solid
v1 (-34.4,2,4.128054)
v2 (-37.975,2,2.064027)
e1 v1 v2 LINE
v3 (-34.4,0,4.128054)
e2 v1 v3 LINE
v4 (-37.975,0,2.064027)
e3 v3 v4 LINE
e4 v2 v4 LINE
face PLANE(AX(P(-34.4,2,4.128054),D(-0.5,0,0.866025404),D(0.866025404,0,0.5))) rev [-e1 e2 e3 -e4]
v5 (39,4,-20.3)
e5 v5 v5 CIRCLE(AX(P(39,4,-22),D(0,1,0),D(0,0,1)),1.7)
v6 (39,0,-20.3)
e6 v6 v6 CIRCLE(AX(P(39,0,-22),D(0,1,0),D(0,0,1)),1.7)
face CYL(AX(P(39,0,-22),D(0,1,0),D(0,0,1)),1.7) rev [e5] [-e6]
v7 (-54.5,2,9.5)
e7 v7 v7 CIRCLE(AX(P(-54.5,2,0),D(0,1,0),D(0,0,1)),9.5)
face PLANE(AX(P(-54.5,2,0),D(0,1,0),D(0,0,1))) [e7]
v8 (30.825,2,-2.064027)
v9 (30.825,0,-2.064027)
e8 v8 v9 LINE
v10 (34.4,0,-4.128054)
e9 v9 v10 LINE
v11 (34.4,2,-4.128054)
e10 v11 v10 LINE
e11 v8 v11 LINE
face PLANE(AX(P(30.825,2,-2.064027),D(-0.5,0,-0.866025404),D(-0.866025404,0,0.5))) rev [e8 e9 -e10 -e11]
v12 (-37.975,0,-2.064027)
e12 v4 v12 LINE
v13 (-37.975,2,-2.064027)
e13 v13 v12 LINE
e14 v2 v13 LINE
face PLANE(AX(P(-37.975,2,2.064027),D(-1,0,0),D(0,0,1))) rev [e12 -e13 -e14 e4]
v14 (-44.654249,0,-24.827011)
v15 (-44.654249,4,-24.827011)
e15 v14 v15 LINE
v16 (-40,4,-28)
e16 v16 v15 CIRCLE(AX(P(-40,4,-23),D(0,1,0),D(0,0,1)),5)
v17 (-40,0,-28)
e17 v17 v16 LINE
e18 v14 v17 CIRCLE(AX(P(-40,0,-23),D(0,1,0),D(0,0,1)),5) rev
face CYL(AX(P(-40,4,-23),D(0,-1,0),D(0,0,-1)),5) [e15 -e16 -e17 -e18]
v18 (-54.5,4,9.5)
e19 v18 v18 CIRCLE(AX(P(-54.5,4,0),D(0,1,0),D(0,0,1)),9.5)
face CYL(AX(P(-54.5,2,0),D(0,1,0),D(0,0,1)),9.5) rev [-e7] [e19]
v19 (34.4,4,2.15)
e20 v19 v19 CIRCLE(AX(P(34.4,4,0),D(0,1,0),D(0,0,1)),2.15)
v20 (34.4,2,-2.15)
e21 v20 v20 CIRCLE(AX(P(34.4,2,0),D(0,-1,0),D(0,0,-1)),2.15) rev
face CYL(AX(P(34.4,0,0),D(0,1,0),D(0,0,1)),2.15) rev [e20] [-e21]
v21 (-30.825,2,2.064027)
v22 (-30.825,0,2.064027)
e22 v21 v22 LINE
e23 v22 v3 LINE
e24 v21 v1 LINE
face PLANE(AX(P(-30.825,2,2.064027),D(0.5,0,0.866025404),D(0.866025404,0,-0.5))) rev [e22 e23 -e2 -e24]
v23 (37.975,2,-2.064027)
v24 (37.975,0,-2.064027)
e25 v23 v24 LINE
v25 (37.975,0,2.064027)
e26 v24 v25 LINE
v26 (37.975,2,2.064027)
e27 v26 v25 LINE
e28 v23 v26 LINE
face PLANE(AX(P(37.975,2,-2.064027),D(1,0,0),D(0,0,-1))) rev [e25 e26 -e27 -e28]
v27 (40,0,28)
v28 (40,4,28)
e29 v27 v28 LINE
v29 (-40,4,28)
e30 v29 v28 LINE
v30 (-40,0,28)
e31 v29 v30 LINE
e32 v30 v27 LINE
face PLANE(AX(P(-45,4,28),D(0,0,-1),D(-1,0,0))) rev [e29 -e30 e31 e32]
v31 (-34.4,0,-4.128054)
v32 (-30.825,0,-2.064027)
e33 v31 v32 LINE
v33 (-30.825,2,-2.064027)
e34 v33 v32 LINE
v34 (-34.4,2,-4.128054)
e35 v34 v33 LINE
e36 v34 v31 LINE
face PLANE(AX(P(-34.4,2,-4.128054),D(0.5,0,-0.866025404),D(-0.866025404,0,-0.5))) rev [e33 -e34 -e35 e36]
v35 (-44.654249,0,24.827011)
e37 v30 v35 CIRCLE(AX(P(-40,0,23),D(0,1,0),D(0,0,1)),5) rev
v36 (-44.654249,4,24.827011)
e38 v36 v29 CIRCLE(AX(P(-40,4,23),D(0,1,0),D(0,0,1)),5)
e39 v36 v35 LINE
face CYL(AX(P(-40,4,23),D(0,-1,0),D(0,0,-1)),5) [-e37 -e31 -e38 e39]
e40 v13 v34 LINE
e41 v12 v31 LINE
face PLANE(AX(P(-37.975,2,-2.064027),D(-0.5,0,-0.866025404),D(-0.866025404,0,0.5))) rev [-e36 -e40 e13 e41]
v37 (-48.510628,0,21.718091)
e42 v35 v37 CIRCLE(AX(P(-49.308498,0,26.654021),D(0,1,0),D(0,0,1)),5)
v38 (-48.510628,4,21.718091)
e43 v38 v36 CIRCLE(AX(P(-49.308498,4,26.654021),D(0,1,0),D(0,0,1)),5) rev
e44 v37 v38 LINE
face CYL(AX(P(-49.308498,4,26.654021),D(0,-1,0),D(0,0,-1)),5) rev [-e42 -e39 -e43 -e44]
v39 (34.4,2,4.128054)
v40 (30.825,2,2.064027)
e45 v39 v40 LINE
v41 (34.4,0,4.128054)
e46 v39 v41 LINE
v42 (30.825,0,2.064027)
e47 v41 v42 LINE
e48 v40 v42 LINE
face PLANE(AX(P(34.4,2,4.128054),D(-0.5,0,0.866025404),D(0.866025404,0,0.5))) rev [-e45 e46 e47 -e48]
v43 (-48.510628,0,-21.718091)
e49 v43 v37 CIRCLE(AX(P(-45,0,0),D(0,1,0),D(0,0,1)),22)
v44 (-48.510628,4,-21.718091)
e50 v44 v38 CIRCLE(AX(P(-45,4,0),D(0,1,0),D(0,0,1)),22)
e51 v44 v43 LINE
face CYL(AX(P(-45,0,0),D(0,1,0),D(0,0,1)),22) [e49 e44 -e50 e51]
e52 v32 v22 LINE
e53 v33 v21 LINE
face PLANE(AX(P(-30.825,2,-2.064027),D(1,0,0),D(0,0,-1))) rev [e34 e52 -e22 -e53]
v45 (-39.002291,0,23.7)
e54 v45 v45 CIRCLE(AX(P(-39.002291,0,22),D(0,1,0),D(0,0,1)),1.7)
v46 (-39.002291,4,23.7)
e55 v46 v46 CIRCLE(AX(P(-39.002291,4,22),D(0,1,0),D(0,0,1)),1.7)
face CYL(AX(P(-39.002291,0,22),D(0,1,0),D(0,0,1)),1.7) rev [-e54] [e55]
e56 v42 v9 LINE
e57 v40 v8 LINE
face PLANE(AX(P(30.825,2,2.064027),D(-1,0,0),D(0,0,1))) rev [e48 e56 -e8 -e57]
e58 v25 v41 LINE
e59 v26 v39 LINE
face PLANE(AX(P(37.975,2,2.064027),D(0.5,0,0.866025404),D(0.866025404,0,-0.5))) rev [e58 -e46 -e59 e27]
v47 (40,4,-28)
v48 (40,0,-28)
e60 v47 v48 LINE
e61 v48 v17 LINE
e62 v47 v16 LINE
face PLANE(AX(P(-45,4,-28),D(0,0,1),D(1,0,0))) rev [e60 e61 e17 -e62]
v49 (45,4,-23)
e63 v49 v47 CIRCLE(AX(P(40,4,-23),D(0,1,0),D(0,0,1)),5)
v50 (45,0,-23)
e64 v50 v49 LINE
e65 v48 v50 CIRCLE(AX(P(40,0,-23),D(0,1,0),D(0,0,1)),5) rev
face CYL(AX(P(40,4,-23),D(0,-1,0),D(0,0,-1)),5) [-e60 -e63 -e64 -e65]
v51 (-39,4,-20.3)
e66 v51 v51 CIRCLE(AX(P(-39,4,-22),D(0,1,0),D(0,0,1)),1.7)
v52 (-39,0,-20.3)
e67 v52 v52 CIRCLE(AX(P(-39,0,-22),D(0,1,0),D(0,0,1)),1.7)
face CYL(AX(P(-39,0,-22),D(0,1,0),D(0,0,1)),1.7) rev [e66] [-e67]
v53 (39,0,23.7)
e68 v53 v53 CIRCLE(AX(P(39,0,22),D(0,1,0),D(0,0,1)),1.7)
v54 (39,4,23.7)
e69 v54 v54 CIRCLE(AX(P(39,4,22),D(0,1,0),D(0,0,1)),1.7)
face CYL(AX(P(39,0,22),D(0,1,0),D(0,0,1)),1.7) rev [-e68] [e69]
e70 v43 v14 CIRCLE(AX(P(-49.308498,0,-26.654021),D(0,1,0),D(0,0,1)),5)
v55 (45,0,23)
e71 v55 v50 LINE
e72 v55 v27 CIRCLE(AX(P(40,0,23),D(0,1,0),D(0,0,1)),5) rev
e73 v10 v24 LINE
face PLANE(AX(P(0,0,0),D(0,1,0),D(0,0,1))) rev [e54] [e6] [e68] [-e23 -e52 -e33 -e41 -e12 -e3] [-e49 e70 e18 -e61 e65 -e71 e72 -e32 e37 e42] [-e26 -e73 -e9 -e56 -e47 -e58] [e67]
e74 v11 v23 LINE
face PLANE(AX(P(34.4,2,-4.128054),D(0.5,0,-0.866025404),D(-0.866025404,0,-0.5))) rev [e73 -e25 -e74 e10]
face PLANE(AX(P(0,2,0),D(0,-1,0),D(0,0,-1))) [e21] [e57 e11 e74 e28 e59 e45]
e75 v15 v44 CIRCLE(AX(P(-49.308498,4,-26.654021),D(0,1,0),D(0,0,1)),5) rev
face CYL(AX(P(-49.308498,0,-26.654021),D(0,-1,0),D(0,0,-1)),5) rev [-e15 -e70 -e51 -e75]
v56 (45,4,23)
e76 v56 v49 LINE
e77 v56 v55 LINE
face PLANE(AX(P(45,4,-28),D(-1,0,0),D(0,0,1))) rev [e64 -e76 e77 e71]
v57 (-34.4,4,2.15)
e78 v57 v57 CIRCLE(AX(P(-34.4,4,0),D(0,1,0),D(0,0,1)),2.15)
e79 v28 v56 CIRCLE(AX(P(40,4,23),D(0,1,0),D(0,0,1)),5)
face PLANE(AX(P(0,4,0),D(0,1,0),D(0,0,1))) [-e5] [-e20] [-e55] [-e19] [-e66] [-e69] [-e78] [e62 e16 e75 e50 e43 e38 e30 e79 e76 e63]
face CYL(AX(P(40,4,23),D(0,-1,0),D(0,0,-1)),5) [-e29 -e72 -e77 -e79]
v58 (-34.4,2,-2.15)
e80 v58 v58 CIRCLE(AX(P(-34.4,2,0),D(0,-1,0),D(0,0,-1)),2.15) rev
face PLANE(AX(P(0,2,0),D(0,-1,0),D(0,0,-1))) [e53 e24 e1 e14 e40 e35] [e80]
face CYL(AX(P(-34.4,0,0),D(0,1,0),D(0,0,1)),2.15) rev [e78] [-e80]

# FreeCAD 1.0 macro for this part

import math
import FreeCAD as App
import Part
import Sketcher

V = App.Vector
Q = App.Units.Quantity


def edges_at(feature, points):
    """Names of the edges that pass closest to the given points."""
    edges = feature.Shape.Edges
    near = lambda p: min(range(len(edges)), key=lambda i: edges[i].distToShape(Part.Vertex(*p))[0])
    return sorted({f"Edge{near(p) + 1}" for p in points})

doc = App.newDocument("Part")
params = doc.addObject("Spreadsheet::Sheet", "Params")
for row, (alias, value) in enumerate([
    ("sketch1_width", "90 mm"),
    ("sketch1_height", "56 mm"),
    ("pad1_length", "4 mm"),
    ("sketch2_diameter", "4.3 mm"),
    ("sketch2_diameter2", "3.4 mm"),
    ("pocket1_length", "4 mm"),
    ("pocket2_length", "2 mm"),
    ("sketch4_radius", "22 mm"),
    ("pad2_length", "4 mm"),
    ("sketch5_diameter", "19 mm"),
    ("pocket3_length", "2 mm"),
    ("fillet_radius", "5 mm"),
    ("fillet2_radius", "5 mm"),
], start=1):
    params.set(f"A{row}", alias)
    params.set(f"B{row}", "=" + value)
    params.setAlias(f"B{row}", alias)

body = doc.addObject("PartDesign::Body", "Body")

sketch1 = body.newObject("Sketcher::SketchObject", "Sketch")
sketch1.AttachmentSupport = (doc.getObject("XZ_Plane"), [""])
sketch1.MapMode = "FlatFace"
sketch1.addGeometry(Part.LineSegment(V(-45, -28, 0), V(-45, 28, 0)), False)
sketch1.addGeometry(Part.LineSegment(V(-45, 28, 0), V(45, 28, 0)), False)
sketch1.addGeometry(Part.LineSegment(V(45, 28, 0), V(45, -28, 0)), False)
sketch1.addGeometry(Part.LineSegment(V(45, -28, 0), V(-45, -28, 0)), False)
sketch1.addConstraint(Sketcher.Constraint("Coincident", 0, 2, 1, 1))
sketch1.addConstraint(Sketcher.Constraint("Coincident", 1, 2, 2, 1))
sketch1.addConstraint(Sketcher.Constraint("Coincident", 2, 2, 3, 1))
sketch1.addConstraint(Sketcher.Constraint("Coincident", 3, 2, 0, 1))
sketch1.addConstraint(Sketcher.Constraint("Vertical", 0))
sketch1.addConstraint(Sketcher.Constraint("Horizontal", 1))
sketch1.addConstraint(Sketcher.Constraint("Vertical", 2))
sketch1.addConstraint(Sketcher.Constraint("Horizontal", 3))
sketch1.addConstraint(Sketcher.Constraint("Symmetric", 0, 2, 2, 2, -1, 1))
sketch1.addConstraint(Sketcher.Constraint("DistanceX", 1, 1, 1, 2, 90.0))
sketch1.addConstraint(Sketcher.Constraint("DistanceY", 0, 1, 0, 2, 56.0))
sketch1.setExpression("Constraints[9]", "Params.sketch1_width")
sketch1.setExpression("Constraints[10]", "Params.sketch1_height")
pad1 = body.newObject("PartDesign::Pad", "Pad")
pad1.Profile = sketch1
pad1.setExpression("Length", "Params.pad1_length")
pad1.Reversed = True

sketch2 = body.newObject("Sketcher::SketchObject", "Sketch001")
sketch2.AttachmentSupport = (doc.getObject("XZ_Plane"), [""])
sketch2.MapMode = "FlatFace"
sketch2.AttachmentOffset = App.Placement(V(0, 0, -4), App.Rotation())
sketch2.addGeometry(Part.Circle(V(-34.4, 0, 0), V(0, 0, 1), 2.1), False)
sketch2.addGeometry(Part.Circle(V(34.4, 0, 0), V(0, 0, 1), 2.1), False)
sketch2.addGeometry(Part.Circle(V(-39, 22, 0), V(0, 0, 1), 1.7), False)
sketch2.addGeometry(Part.Circle(V(39, 22, 0), V(0, 0, 1), 1.7), False)
sketch2.addGeometry(Part.Circle(V(39, -22, 0), V(0, 0, 1), 1.7), False)
sketch2.addGeometry(Part.Circle(V(-39, -22, 0), V(0, 0, 1), 1.7), False)
sketch2.addConstraint(Sketcher.Constraint("Equal", 0, 1))
sketch2.addConstraint(Sketcher.Constraint("Equal", 2, 3))
sketch2.addConstraint(Sketcher.Constraint("Equal", 3, 4))
sketch2.addConstraint(Sketcher.Constraint("Equal", 4, 5))
sketch2.addConstraint(Sketcher.Constraint("Symmetric", 0, 3, 1, 3, -1, 1))
sketch2.addConstraint(Sketcher.Constraint("Symmetric", 3, 3, 5, 3, -1, 1))
sketch2.addConstraint(Sketcher.Constraint("Symmetric", 4, 3, 5, 3, -2))
sketch2.addConstraint(Sketcher.Constraint("PointOnObject", 0, 3, -1))
sketch2.addConstraint(Sketcher.Constraint("Horizontal", 2, 3, 3, 3))
sketch2.addConstraint(Sketcher.Constraint("Diameter", 0, 4.3))
sketch2.addConstraint(Sketcher.Constraint("Diameter", 2, 3.4))
sketch2.addConstraint(Sketcher.Constraint("DistanceY", -1, 1, 2, 3, 22.0))
sketch2.addConstraint(Sketcher.Constraint("DistanceX", -1, 1, 3, 3, 39.0))
sketch2.addConstraint(Sketcher.Constraint("DistanceX", 0, 3, -1, 1, 34.4))
sketch2.addConstraint(Sketcher.Constraint("DistanceX", 2, 3, -1, 1, 39.002291))
sketch2.setExpression("Constraints[9]", "Params.sketch2_diameter")
sketch2.setExpression("Constraints[10]", "Params.sketch2_diameter2")
pocket1 = body.newObject("PartDesign::Pocket", "Pocket")
pocket1.Profile = sketch2
pocket1.setExpression("Length", "Params.pocket1_length")
pocket1.Reversed = True

sketch3 = body.newObject("Sketcher::SketchObject", "Sketch002")
sketch3.AttachmentSupport = (doc.getObject("XZ_Plane"), [""])
sketch3.MapMode = "FlatFace"
sketch3.addGeometry(Part.LineSegment(V(30.8, -2.1, 0), V(34.4, -4.1, 0)), False)
sketch3.addGeometry(Part.LineSegment(V(34.4, -4.1, 0), V(38, -2.1, 0)), False)
sketch3.addGeometry(Part.LineSegment(V(38, -2.1, 0), V(38, 2.1, 0)), False)
sketch3.addGeometry(Part.LineSegment(V(38, 2.1, 0), V(34.4, 4.1, 0)), False)
sketch3.addGeometry(Part.LineSegment(V(34.4, 4.1, 0), V(30.8, 2.1, 0)), False)
sketch3.addGeometry(Part.LineSegment(V(30.8, 2.1, 0), V(30.8, -2.1, 0)), False)
sketch3.addGeometry(Part.LineSegment(V(-38, -2.1, 0), V(-34.4, -4.1, 0)), False)
sketch3.addGeometry(Part.LineSegment(V(-34.4, -4.1, 0), V(-30.8, -2.1, 0)), False)
sketch3.addGeometry(Part.LineSegment(V(-30.8, -2.1, 0), V(-30.8, 2.1, 0)), False)
sketch3.addGeometry(Part.LineSegment(V(-30.8, 2.1, 0), V(-34.4, 4.1, 0)), False)
sketch3.addGeometry(Part.LineSegment(V(-34.4, 4.1, 0), V(-38, 2.1, 0)), False)
sketch3.addGeometry(Part.LineSegment(V(-38, 2.1, 0), V(-38, -2.1, 0)), False)
sketch3.addConstraint(Sketcher.Constraint("Coincident", 0, 2, 1, 1))
sketch3.addConstraint(Sketcher.Constraint("Coincident", 1, 2, 2, 1))
sketch3.addConstraint(Sketcher.Constraint("Coincident", 2, 2, 3, 1))
sketch3.addConstraint(Sketcher.Constraint("Coincident", 3, 2, 4, 1))
sketch3.addConstraint(Sketcher.Constraint("Coincident", 4, 2, 5, 1))
sketch3.addConstraint(Sketcher.Constraint("Coincident", 5, 2, 0, 1))
sketch3.addConstraint(Sketcher.Constraint("Coincident", 6, 2, 7, 1))
sketch3.addConstraint(Sketcher.Constraint("Coincident", 7, 2, 8, 1))
sketch3.addConstraint(Sketcher.Constraint("Coincident", 8, 2, 9, 1))
sketch3.addConstraint(Sketcher.Constraint("Coincident", 9, 2, 10, 1))
sketch3.addConstraint(Sketcher.Constraint("Coincident", 10, 2, 11, 1))
sketch3.addConstraint(Sketcher.Constraint("Coincident", 11, 2, 6, 1))
sketch3.addConstraint(Sketcher.Constraint("Vertical", 2))
sketch3.addConstraint(Sketcher.Constraint("Vertical", 5))
sketch3.addConstraint(Sketcher.Constraint("Vertical", 8))
sketch3.addConstraint(Sketcher.Constraint("Vertical", 11))
sketch3.addConstraint(Sketcher.Constraint("Symmetric", 3, 2, 6, 2, -1, 1))
sketch3.addConstraint(Sketcher.Constraint("Symmetric", 4, 2, 7, 2, -1, 1))
sketch3.addConstraint(Sketcher.Constraint("Symmetric", 0, 2, 9, 2, -1, 1))
sketch3.addConstraint(Sketcher.Constraint("Symmetric", 1, 2, 10, 2, -1, 1))
sketch3.addConstraint(Sketcher.Constraint("Symmetric", 0, 2, 6, 2, -2))
sketch3.addConstraint(Sketcher.Constraint("Parallel", 0, 3))
sketch3.addConstraint(Sketcher.Constraint("Parallel", 1, 4))
sketch3.addConstraint(Sketcher.Constraint("Parallel", 3, 6))
sketch3.addConstraint(Sketcher.Constraint("Parallel", 6, 9))
sketch3.addConstraint(Sketcher.Constraint("Horizontal", 2, 2, 4, 2))
sketch3.addConstraint(Sketcher.Constraint("Horizontal", 1, 2, 5, 2))
sketch3.addConstraint(Sketcher.Constraint("Angle", 0, Q("-30 deg")))
sketch3.addConstraint(Sketcher.Constraint("DistanceX", -1, 1, 0, 2, 34.4))
sketch3.addConstraint(Sketcher.Constraint("DistanceX", 4, 2, 2, 2, 7.15))
sketch3.addConstraint(Sketcher.Constraint("DistanceY", 2, 1, 2, 2, 4.128054))
pocket2 = body.newObject("PartDesign::Pocket", "Pocket001")
pocket2.Profile = sketch3
pocket2.setExpression("Length", "Params.pocket2_length")

sketch4 = body.newObject("Sketcher::SketchObject", "Sketch003")
sketch4.AttachmentSupport = (doc.getObject("XZ_Plane"), [""])
sketch4.MapMode = "FlatFace"
sketch4.AttachmentOffset = App.Placement(V(0, 0, -4), App.Rotation())
sketch4.addGeometry(Part.LineSegment(V(-45, 22, 0), V(-45, -22, 0)), False)
sketch4.addGeometry(Part.ArcOfCircle(Part.Circle(V(-45, 0, 0), V(0, 0, 1), 22), math.radians(90), math.radians(270)), False)
sketch4.addConstraint(Sketcher.Constraint("Coincident", 0, 1, 1, 1))
sketch4.addConstraint(Sketcher.Constraint("Coincident", 1, 2, 0, 2))
sketch4.addConstraint(Sketcher.Constraint("Vertical", 0))
sketch4.addConstraint(Sketcher.Constraint("PointOnObject", 1, 3, -1))
sketch4.addConstraint(Sketcher.Constraint("Vertical", 1, 3, 0, 1))
sketch4.addConstraint(Sketcher.Constraint("Radius", 1, 22.0))
sketch4.addConstraint(Sketcher.Constraint("DistanceX", 1, 3, -1, 1, 45.0))
sketch4.setExpression("Constraints[5]", "Params.sketch4_radius")
pad2 = body.newObject("PartDesign::Pad", "Pad001")
pad2.Profile = sketch4
pad2.setExpression("Length", "Params.pad2_length")

sketch5 = body.newObject("Sketcher::SketchObject", "Sketch004")
sketch5.AttachmentSupport = (doc.getObject("XZ_Plane"), [""])
sketch5.MapMode = "FlatFace"
sketch5.AttachmentOffset = App.Placement(V(0, 0, -4), App.Rotation())
sketch5.addGeometry(Part.Circle(V(-54, 0, 0), V(0, 0, 1), 10), False)
sketch5.addConstraint(Sketcher.Constraint("PointOnObject", 0, 3, -1))
sketch5.addConstraint(Sketcher.Constraint("Diameter", 0, 19.0))
sketch5.addConstraint(Sketcher.Constraint("DistanceX", 0, 3, -1, 1, 54.5))
sketch5.setExpression("Constraints[1]", "Params.sketch5_diameter")
pocket3 = body.newObject("PartDesign::Pocket", "Pocket002")
pocket3.Profile = sketch5
pocket3.setExpression("Length", "Params.pocket3_length")
pocket3.Reversed = True
doc.recompute()

fillet = body.newObject("PartDesign::Fillet", "Fillet")
fillet.Base = (pocket3, edges_at(pocket3, [
    (-45, 2, -28),
    (45, 2, -28),
    (45, 2, 28),
    (-45, 2, 28),
]))
fillet.setExpression("Radius", "Params.fillet_radius")
doc.recompute()

fillet2 = body.newObject("PartDesign::Fillet", "Fillet001")
fillet2.Base = (fillet, edges_at(fillet, [(-45, 2, -22), (-45, 2, 22)]))
fillet2.setExpression("Radius", "Params.fillet2_radius")

doc.recompute()
